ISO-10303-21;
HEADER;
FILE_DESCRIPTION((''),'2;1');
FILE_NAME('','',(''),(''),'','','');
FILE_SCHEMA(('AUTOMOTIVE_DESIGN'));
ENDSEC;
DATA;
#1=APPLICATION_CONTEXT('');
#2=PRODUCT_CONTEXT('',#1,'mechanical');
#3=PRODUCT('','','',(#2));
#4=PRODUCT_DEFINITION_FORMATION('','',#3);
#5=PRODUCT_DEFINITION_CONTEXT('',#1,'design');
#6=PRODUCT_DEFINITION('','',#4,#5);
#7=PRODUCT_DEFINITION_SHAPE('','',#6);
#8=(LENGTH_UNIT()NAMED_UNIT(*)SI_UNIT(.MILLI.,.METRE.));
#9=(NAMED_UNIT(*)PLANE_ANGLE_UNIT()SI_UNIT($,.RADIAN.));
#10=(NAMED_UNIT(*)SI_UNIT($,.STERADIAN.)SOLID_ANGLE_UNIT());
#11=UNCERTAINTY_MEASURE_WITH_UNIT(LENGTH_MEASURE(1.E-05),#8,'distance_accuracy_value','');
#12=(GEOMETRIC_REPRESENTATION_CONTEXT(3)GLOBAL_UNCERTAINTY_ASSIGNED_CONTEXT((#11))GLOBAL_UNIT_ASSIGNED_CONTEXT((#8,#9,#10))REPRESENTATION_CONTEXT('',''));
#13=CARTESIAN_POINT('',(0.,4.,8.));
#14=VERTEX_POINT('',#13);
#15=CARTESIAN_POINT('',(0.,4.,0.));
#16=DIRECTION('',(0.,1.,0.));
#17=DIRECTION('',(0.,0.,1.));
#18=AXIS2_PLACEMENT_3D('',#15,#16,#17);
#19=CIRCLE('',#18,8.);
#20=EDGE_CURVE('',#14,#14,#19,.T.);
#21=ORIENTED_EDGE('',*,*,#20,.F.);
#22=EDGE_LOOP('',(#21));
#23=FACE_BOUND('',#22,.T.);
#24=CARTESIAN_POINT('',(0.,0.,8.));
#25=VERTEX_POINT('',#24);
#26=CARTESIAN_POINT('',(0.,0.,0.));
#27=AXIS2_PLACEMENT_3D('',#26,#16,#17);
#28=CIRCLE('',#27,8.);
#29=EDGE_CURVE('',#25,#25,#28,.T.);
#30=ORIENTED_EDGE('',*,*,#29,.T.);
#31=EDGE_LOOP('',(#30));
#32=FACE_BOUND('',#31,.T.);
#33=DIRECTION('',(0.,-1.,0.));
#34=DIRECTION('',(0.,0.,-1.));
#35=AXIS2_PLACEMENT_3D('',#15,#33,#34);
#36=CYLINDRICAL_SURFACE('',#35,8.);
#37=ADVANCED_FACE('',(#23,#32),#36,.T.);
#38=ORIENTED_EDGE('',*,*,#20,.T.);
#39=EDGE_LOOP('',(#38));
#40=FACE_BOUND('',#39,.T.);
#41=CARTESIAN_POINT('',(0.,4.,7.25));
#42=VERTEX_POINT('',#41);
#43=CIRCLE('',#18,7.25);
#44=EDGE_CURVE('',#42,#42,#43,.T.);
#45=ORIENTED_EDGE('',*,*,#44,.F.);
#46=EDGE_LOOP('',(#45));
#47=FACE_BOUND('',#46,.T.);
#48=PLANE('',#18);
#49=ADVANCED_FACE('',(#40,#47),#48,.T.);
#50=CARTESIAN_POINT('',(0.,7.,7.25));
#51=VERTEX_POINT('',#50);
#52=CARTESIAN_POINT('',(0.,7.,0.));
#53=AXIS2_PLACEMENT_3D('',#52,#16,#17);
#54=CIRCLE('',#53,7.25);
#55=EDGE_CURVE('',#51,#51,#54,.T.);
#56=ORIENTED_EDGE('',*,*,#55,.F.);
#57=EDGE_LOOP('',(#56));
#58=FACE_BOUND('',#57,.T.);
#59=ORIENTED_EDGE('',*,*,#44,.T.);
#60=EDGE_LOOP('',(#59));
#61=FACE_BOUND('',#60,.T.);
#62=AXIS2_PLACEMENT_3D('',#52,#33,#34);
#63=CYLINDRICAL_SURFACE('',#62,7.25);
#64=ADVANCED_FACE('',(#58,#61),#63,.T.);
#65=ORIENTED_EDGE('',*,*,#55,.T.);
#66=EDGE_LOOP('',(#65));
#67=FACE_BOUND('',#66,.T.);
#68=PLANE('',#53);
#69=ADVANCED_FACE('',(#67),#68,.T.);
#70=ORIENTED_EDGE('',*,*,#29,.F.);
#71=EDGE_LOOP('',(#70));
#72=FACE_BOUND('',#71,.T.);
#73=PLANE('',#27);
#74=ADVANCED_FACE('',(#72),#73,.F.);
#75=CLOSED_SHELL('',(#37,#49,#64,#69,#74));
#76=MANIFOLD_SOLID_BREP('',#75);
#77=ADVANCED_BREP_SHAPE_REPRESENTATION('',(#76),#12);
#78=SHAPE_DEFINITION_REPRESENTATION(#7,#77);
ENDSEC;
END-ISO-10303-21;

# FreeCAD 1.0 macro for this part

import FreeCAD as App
import Part
import Sketcher
from FreeCAD import Vector
Q = App.Units.Quantity

doc = App.newDocument("Part")
body = doc.addObject("PartDesign::Body", "Body")

# Sketch on XZ plane
sketch1 = body.newObject("Sketcher::SketchObject", "Sketch")
sketch1.AttachmentSupport = (doc.getObject("XZ_Plane"), [""])
sketch1.MapMode = "FlatFace"
sketch1.addGeometry(Part.Circle(Vector(0, 0, 0), Vector(0, 0, 1), 8), False)
sketch1.addConstraint(Sketcher.Constraint("Coincident", 0, 3, -1, 1))
sketch1.addConstraint(Sketcher.Constraint("Diameter", 0, Q("16 mm")))
pad1 = body.newObject("PartDesign::Pad", "Pad")
pad1.Profile = sketch1
pad1.Length = 4
pad1.Reversed = True

# Sketch on XZ plane
sketch2 = body.newObject("Sketcher::SketchObject", "Sketch001")
sketch2.AttachmentSupport = (doc.getObject("XZ_Plane"), [""])
sketch2.MapMode = "FlatFace"
sketch2.AttachmentOffset = App.Placement(Vector(0, 0, -4), App.Rotation())
sketch2.addGeometry(Part.Circle(Vector(0, 0, 0), Vector(0, 0, 1), 7), False)
sketch2.addConstraint(Sketcher.Constraint("Coincident", 0, 3, -1, 1))
sketch2.addConstraint(Sketcher.Constraint("Diameter", 0, Q("14.5 mm")))
pad2 = body.newObject("PartDesign::Pad", "Pad001")
pad2.Profile = sketch2
pad2.Length = 3
pad2.Reversed = True

doc.recompute()
